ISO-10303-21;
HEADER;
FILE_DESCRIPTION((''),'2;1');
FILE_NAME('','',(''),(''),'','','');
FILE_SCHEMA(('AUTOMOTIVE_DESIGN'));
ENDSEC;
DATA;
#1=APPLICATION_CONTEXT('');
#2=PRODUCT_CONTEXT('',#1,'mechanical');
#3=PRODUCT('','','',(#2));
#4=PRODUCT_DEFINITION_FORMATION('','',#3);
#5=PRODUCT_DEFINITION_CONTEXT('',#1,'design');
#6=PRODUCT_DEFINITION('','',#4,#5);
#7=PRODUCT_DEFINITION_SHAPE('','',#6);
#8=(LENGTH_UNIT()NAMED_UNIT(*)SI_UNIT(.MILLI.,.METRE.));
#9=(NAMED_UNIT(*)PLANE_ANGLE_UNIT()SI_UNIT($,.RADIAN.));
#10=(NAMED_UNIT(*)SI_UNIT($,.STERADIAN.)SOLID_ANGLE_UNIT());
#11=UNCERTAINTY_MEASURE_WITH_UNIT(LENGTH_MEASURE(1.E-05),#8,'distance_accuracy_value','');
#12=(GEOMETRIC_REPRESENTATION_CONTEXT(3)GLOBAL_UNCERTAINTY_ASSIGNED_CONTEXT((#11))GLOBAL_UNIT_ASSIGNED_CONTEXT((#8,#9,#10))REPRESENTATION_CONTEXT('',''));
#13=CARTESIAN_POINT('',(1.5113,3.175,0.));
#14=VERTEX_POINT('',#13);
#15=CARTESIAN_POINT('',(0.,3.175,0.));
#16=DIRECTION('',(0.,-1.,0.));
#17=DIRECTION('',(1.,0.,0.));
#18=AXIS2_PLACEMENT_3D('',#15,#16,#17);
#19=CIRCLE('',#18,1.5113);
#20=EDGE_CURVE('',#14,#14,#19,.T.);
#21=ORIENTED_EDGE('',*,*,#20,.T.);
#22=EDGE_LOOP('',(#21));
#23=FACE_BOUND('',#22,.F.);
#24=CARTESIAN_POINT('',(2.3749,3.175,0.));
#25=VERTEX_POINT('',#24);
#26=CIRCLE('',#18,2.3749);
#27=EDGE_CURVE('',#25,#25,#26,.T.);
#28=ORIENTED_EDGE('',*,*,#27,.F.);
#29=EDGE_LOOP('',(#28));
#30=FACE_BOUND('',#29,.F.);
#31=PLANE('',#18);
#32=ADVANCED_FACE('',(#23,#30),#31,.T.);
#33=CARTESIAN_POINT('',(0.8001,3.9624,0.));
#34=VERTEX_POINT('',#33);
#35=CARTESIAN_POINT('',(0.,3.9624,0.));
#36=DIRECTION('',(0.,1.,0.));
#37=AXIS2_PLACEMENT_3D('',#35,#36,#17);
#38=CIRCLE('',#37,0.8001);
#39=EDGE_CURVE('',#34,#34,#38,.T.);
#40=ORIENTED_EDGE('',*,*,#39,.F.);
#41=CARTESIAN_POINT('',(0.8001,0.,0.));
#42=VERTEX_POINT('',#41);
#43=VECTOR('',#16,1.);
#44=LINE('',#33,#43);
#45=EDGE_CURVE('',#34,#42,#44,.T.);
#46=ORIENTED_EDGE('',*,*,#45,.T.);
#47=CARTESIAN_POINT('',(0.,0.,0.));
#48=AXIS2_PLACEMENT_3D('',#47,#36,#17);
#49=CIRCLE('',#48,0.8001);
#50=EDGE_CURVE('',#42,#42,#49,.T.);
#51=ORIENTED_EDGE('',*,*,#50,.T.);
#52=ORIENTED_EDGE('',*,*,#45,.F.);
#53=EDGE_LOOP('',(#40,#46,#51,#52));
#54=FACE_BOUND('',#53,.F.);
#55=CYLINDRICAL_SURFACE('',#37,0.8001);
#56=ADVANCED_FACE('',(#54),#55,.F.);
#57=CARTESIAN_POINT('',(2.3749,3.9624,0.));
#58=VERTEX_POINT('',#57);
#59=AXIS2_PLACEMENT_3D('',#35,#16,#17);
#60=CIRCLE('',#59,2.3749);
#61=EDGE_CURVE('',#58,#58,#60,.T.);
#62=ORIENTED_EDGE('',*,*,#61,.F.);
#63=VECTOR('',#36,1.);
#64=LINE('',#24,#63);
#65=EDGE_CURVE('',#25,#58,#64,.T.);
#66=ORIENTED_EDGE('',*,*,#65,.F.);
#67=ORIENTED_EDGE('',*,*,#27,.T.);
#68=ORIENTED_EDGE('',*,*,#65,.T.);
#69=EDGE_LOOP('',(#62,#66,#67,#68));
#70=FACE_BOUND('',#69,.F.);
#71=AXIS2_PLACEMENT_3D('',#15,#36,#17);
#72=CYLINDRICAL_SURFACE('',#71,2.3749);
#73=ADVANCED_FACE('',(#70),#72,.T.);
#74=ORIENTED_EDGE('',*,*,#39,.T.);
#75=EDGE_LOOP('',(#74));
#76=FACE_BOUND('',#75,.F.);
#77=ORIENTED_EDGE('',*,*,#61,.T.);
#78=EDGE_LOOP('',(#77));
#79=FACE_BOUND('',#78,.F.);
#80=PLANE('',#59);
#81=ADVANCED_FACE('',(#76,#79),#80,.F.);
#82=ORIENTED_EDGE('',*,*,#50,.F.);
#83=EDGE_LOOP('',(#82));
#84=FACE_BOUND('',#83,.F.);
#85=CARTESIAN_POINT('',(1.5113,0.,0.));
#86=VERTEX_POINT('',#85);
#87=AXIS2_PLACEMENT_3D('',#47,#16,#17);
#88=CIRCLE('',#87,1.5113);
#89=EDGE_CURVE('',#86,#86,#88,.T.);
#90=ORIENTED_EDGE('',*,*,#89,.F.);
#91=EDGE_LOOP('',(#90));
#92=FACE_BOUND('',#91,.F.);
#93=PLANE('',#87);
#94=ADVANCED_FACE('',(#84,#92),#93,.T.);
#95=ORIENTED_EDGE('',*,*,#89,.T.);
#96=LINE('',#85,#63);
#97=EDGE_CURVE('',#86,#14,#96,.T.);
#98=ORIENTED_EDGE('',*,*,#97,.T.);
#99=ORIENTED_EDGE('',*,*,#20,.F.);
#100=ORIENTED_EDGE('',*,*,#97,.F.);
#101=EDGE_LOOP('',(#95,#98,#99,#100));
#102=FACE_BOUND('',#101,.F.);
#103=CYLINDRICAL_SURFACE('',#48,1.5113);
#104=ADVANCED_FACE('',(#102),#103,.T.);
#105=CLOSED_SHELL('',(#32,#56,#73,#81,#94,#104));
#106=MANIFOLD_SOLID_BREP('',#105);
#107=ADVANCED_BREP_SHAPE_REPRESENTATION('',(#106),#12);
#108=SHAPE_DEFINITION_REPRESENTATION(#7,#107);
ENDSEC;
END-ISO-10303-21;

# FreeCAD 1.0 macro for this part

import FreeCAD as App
import Part
import Sketcher
Q = App.Units.Quantity

doc = App.newDocument("Part")
body = doc.addObject("PartDesign::Body", "Body")

# Sketch on XY plane
sketch1 = doc.addObject("Sketcher::SketchObject", "Sketch")
body.addObject(sketch1)
sketch1.AttachmentSupport = (doc.XY_Plane, [""])
sketch1.MapMode = "FlatFace"
sketch1.addGeometry([
    Part.LineSegment(App.Vector(0, 0, 0), App.Vector(1.5, 0, 0)),  # 0
    Part.LineSegment(App.Vector(1.5, 0, 0), App.Vector(1.5, 3.2, 0)),  # 1
    Part.LineSegment(App.Vector(1.5, 3.2, 0), App.Vector(2.4, 3.2, 0)),  # 2
    Part.LineSegment(App.Vector(2.4, 3.2, 0), App.Vector(2.4, 4, 0)),  # 3
    Part.LineSegment(App.Vector(2.4, 4, 0), App.Vector(0, 4, 0)),  # 4
    Part.LineSegment(App.Vector(0, 4, 0), App.Vector(0, 0, 0)),  # 5
], False)
sketch1.addConstraint([
    Sketcher.Constraint("Coincident", 0, 2, 1, 1),
    Sketcher.Constraint("Coincident", 1, 2, 2, 1),
    Sketcher.Constraint("Coincident", 2, 2, 3, 1),
    Sketcher.Constraint("Coincident", 3, 2, 4, 1),
    Sketcher.Constraint("Coincident", 4, 2, 5, 1),
    Sketcher.Constraint("Coincident", 5, 2, 0, 1),
    Sketcher.Constraint("Horizontal", 0),
    Sketcher.Constraint("Vertical", 1),
    Sketcher.Constraint("Horizontal", 2),
    Sketcher.Constraint("Vertical", 3),
    Sketcher.Constraint("Horizontal", 4),
    Sketcher.Constraint("Vertical", 5),
    Sketcher.Constraint("Coincident", 5, 2, -1, 1),
    Sketcher.Constraint("DistanceY", 1, 1, 1, 2, Q("0.125 in")),
    Sketcher.Constraint("DistanceY", 3, 1, 3, 2, Q("0.031 in")),
    Sketcher.Constraint("DistanceX", 0, 1, 0, 2, Q("0.0595 in")),
    Sketcher.Constraint("DistanceX", 4, 2, 4, 1, Q("0.0935 in")),
])
revolution = doc.addObject("PartDesign::Revolution", "Revolution")
body.addObject(revolution)
revolution.Profile = sketch1
revolution.ReferenceAxis = (sketch1, ["V_Axis"])
revolution.Angle = 360

# Sketch on XZ plane
sketch2 = doc.addObject("Sketcher::SketchObject", "Sketch001")
body.addObject(sketch2)
sketch2.AttachmentSupport = (doc.XZ_Plane, [""])
sketch2.MapMode = "FlatFace"
sketch2.AttachmentOffset = App.Placement(App.Vector(0, 0, -0.156 * 25.4), App.Rotation())
sketch2.addGeometry(Part.Circle(App.Vector(0, 0, 0), App.Vector(0, 0, 1), 0.8), False)
sketch2.addConstraint([
    Sketcher.Constraint("Coincident", 0, 3, -1, 1),
    Sketcher.Constraint("Diameter", 0, Q("0.063 in")),
])
pocket1 = doc.addObject("PartDesign::Pocket", "Pocket")
body.addObject(pocket1)
pocket1.Profile = sketch2
pocket1.Length = Q("1 in")
pocket1.Reversed = True

doc.recompute()
